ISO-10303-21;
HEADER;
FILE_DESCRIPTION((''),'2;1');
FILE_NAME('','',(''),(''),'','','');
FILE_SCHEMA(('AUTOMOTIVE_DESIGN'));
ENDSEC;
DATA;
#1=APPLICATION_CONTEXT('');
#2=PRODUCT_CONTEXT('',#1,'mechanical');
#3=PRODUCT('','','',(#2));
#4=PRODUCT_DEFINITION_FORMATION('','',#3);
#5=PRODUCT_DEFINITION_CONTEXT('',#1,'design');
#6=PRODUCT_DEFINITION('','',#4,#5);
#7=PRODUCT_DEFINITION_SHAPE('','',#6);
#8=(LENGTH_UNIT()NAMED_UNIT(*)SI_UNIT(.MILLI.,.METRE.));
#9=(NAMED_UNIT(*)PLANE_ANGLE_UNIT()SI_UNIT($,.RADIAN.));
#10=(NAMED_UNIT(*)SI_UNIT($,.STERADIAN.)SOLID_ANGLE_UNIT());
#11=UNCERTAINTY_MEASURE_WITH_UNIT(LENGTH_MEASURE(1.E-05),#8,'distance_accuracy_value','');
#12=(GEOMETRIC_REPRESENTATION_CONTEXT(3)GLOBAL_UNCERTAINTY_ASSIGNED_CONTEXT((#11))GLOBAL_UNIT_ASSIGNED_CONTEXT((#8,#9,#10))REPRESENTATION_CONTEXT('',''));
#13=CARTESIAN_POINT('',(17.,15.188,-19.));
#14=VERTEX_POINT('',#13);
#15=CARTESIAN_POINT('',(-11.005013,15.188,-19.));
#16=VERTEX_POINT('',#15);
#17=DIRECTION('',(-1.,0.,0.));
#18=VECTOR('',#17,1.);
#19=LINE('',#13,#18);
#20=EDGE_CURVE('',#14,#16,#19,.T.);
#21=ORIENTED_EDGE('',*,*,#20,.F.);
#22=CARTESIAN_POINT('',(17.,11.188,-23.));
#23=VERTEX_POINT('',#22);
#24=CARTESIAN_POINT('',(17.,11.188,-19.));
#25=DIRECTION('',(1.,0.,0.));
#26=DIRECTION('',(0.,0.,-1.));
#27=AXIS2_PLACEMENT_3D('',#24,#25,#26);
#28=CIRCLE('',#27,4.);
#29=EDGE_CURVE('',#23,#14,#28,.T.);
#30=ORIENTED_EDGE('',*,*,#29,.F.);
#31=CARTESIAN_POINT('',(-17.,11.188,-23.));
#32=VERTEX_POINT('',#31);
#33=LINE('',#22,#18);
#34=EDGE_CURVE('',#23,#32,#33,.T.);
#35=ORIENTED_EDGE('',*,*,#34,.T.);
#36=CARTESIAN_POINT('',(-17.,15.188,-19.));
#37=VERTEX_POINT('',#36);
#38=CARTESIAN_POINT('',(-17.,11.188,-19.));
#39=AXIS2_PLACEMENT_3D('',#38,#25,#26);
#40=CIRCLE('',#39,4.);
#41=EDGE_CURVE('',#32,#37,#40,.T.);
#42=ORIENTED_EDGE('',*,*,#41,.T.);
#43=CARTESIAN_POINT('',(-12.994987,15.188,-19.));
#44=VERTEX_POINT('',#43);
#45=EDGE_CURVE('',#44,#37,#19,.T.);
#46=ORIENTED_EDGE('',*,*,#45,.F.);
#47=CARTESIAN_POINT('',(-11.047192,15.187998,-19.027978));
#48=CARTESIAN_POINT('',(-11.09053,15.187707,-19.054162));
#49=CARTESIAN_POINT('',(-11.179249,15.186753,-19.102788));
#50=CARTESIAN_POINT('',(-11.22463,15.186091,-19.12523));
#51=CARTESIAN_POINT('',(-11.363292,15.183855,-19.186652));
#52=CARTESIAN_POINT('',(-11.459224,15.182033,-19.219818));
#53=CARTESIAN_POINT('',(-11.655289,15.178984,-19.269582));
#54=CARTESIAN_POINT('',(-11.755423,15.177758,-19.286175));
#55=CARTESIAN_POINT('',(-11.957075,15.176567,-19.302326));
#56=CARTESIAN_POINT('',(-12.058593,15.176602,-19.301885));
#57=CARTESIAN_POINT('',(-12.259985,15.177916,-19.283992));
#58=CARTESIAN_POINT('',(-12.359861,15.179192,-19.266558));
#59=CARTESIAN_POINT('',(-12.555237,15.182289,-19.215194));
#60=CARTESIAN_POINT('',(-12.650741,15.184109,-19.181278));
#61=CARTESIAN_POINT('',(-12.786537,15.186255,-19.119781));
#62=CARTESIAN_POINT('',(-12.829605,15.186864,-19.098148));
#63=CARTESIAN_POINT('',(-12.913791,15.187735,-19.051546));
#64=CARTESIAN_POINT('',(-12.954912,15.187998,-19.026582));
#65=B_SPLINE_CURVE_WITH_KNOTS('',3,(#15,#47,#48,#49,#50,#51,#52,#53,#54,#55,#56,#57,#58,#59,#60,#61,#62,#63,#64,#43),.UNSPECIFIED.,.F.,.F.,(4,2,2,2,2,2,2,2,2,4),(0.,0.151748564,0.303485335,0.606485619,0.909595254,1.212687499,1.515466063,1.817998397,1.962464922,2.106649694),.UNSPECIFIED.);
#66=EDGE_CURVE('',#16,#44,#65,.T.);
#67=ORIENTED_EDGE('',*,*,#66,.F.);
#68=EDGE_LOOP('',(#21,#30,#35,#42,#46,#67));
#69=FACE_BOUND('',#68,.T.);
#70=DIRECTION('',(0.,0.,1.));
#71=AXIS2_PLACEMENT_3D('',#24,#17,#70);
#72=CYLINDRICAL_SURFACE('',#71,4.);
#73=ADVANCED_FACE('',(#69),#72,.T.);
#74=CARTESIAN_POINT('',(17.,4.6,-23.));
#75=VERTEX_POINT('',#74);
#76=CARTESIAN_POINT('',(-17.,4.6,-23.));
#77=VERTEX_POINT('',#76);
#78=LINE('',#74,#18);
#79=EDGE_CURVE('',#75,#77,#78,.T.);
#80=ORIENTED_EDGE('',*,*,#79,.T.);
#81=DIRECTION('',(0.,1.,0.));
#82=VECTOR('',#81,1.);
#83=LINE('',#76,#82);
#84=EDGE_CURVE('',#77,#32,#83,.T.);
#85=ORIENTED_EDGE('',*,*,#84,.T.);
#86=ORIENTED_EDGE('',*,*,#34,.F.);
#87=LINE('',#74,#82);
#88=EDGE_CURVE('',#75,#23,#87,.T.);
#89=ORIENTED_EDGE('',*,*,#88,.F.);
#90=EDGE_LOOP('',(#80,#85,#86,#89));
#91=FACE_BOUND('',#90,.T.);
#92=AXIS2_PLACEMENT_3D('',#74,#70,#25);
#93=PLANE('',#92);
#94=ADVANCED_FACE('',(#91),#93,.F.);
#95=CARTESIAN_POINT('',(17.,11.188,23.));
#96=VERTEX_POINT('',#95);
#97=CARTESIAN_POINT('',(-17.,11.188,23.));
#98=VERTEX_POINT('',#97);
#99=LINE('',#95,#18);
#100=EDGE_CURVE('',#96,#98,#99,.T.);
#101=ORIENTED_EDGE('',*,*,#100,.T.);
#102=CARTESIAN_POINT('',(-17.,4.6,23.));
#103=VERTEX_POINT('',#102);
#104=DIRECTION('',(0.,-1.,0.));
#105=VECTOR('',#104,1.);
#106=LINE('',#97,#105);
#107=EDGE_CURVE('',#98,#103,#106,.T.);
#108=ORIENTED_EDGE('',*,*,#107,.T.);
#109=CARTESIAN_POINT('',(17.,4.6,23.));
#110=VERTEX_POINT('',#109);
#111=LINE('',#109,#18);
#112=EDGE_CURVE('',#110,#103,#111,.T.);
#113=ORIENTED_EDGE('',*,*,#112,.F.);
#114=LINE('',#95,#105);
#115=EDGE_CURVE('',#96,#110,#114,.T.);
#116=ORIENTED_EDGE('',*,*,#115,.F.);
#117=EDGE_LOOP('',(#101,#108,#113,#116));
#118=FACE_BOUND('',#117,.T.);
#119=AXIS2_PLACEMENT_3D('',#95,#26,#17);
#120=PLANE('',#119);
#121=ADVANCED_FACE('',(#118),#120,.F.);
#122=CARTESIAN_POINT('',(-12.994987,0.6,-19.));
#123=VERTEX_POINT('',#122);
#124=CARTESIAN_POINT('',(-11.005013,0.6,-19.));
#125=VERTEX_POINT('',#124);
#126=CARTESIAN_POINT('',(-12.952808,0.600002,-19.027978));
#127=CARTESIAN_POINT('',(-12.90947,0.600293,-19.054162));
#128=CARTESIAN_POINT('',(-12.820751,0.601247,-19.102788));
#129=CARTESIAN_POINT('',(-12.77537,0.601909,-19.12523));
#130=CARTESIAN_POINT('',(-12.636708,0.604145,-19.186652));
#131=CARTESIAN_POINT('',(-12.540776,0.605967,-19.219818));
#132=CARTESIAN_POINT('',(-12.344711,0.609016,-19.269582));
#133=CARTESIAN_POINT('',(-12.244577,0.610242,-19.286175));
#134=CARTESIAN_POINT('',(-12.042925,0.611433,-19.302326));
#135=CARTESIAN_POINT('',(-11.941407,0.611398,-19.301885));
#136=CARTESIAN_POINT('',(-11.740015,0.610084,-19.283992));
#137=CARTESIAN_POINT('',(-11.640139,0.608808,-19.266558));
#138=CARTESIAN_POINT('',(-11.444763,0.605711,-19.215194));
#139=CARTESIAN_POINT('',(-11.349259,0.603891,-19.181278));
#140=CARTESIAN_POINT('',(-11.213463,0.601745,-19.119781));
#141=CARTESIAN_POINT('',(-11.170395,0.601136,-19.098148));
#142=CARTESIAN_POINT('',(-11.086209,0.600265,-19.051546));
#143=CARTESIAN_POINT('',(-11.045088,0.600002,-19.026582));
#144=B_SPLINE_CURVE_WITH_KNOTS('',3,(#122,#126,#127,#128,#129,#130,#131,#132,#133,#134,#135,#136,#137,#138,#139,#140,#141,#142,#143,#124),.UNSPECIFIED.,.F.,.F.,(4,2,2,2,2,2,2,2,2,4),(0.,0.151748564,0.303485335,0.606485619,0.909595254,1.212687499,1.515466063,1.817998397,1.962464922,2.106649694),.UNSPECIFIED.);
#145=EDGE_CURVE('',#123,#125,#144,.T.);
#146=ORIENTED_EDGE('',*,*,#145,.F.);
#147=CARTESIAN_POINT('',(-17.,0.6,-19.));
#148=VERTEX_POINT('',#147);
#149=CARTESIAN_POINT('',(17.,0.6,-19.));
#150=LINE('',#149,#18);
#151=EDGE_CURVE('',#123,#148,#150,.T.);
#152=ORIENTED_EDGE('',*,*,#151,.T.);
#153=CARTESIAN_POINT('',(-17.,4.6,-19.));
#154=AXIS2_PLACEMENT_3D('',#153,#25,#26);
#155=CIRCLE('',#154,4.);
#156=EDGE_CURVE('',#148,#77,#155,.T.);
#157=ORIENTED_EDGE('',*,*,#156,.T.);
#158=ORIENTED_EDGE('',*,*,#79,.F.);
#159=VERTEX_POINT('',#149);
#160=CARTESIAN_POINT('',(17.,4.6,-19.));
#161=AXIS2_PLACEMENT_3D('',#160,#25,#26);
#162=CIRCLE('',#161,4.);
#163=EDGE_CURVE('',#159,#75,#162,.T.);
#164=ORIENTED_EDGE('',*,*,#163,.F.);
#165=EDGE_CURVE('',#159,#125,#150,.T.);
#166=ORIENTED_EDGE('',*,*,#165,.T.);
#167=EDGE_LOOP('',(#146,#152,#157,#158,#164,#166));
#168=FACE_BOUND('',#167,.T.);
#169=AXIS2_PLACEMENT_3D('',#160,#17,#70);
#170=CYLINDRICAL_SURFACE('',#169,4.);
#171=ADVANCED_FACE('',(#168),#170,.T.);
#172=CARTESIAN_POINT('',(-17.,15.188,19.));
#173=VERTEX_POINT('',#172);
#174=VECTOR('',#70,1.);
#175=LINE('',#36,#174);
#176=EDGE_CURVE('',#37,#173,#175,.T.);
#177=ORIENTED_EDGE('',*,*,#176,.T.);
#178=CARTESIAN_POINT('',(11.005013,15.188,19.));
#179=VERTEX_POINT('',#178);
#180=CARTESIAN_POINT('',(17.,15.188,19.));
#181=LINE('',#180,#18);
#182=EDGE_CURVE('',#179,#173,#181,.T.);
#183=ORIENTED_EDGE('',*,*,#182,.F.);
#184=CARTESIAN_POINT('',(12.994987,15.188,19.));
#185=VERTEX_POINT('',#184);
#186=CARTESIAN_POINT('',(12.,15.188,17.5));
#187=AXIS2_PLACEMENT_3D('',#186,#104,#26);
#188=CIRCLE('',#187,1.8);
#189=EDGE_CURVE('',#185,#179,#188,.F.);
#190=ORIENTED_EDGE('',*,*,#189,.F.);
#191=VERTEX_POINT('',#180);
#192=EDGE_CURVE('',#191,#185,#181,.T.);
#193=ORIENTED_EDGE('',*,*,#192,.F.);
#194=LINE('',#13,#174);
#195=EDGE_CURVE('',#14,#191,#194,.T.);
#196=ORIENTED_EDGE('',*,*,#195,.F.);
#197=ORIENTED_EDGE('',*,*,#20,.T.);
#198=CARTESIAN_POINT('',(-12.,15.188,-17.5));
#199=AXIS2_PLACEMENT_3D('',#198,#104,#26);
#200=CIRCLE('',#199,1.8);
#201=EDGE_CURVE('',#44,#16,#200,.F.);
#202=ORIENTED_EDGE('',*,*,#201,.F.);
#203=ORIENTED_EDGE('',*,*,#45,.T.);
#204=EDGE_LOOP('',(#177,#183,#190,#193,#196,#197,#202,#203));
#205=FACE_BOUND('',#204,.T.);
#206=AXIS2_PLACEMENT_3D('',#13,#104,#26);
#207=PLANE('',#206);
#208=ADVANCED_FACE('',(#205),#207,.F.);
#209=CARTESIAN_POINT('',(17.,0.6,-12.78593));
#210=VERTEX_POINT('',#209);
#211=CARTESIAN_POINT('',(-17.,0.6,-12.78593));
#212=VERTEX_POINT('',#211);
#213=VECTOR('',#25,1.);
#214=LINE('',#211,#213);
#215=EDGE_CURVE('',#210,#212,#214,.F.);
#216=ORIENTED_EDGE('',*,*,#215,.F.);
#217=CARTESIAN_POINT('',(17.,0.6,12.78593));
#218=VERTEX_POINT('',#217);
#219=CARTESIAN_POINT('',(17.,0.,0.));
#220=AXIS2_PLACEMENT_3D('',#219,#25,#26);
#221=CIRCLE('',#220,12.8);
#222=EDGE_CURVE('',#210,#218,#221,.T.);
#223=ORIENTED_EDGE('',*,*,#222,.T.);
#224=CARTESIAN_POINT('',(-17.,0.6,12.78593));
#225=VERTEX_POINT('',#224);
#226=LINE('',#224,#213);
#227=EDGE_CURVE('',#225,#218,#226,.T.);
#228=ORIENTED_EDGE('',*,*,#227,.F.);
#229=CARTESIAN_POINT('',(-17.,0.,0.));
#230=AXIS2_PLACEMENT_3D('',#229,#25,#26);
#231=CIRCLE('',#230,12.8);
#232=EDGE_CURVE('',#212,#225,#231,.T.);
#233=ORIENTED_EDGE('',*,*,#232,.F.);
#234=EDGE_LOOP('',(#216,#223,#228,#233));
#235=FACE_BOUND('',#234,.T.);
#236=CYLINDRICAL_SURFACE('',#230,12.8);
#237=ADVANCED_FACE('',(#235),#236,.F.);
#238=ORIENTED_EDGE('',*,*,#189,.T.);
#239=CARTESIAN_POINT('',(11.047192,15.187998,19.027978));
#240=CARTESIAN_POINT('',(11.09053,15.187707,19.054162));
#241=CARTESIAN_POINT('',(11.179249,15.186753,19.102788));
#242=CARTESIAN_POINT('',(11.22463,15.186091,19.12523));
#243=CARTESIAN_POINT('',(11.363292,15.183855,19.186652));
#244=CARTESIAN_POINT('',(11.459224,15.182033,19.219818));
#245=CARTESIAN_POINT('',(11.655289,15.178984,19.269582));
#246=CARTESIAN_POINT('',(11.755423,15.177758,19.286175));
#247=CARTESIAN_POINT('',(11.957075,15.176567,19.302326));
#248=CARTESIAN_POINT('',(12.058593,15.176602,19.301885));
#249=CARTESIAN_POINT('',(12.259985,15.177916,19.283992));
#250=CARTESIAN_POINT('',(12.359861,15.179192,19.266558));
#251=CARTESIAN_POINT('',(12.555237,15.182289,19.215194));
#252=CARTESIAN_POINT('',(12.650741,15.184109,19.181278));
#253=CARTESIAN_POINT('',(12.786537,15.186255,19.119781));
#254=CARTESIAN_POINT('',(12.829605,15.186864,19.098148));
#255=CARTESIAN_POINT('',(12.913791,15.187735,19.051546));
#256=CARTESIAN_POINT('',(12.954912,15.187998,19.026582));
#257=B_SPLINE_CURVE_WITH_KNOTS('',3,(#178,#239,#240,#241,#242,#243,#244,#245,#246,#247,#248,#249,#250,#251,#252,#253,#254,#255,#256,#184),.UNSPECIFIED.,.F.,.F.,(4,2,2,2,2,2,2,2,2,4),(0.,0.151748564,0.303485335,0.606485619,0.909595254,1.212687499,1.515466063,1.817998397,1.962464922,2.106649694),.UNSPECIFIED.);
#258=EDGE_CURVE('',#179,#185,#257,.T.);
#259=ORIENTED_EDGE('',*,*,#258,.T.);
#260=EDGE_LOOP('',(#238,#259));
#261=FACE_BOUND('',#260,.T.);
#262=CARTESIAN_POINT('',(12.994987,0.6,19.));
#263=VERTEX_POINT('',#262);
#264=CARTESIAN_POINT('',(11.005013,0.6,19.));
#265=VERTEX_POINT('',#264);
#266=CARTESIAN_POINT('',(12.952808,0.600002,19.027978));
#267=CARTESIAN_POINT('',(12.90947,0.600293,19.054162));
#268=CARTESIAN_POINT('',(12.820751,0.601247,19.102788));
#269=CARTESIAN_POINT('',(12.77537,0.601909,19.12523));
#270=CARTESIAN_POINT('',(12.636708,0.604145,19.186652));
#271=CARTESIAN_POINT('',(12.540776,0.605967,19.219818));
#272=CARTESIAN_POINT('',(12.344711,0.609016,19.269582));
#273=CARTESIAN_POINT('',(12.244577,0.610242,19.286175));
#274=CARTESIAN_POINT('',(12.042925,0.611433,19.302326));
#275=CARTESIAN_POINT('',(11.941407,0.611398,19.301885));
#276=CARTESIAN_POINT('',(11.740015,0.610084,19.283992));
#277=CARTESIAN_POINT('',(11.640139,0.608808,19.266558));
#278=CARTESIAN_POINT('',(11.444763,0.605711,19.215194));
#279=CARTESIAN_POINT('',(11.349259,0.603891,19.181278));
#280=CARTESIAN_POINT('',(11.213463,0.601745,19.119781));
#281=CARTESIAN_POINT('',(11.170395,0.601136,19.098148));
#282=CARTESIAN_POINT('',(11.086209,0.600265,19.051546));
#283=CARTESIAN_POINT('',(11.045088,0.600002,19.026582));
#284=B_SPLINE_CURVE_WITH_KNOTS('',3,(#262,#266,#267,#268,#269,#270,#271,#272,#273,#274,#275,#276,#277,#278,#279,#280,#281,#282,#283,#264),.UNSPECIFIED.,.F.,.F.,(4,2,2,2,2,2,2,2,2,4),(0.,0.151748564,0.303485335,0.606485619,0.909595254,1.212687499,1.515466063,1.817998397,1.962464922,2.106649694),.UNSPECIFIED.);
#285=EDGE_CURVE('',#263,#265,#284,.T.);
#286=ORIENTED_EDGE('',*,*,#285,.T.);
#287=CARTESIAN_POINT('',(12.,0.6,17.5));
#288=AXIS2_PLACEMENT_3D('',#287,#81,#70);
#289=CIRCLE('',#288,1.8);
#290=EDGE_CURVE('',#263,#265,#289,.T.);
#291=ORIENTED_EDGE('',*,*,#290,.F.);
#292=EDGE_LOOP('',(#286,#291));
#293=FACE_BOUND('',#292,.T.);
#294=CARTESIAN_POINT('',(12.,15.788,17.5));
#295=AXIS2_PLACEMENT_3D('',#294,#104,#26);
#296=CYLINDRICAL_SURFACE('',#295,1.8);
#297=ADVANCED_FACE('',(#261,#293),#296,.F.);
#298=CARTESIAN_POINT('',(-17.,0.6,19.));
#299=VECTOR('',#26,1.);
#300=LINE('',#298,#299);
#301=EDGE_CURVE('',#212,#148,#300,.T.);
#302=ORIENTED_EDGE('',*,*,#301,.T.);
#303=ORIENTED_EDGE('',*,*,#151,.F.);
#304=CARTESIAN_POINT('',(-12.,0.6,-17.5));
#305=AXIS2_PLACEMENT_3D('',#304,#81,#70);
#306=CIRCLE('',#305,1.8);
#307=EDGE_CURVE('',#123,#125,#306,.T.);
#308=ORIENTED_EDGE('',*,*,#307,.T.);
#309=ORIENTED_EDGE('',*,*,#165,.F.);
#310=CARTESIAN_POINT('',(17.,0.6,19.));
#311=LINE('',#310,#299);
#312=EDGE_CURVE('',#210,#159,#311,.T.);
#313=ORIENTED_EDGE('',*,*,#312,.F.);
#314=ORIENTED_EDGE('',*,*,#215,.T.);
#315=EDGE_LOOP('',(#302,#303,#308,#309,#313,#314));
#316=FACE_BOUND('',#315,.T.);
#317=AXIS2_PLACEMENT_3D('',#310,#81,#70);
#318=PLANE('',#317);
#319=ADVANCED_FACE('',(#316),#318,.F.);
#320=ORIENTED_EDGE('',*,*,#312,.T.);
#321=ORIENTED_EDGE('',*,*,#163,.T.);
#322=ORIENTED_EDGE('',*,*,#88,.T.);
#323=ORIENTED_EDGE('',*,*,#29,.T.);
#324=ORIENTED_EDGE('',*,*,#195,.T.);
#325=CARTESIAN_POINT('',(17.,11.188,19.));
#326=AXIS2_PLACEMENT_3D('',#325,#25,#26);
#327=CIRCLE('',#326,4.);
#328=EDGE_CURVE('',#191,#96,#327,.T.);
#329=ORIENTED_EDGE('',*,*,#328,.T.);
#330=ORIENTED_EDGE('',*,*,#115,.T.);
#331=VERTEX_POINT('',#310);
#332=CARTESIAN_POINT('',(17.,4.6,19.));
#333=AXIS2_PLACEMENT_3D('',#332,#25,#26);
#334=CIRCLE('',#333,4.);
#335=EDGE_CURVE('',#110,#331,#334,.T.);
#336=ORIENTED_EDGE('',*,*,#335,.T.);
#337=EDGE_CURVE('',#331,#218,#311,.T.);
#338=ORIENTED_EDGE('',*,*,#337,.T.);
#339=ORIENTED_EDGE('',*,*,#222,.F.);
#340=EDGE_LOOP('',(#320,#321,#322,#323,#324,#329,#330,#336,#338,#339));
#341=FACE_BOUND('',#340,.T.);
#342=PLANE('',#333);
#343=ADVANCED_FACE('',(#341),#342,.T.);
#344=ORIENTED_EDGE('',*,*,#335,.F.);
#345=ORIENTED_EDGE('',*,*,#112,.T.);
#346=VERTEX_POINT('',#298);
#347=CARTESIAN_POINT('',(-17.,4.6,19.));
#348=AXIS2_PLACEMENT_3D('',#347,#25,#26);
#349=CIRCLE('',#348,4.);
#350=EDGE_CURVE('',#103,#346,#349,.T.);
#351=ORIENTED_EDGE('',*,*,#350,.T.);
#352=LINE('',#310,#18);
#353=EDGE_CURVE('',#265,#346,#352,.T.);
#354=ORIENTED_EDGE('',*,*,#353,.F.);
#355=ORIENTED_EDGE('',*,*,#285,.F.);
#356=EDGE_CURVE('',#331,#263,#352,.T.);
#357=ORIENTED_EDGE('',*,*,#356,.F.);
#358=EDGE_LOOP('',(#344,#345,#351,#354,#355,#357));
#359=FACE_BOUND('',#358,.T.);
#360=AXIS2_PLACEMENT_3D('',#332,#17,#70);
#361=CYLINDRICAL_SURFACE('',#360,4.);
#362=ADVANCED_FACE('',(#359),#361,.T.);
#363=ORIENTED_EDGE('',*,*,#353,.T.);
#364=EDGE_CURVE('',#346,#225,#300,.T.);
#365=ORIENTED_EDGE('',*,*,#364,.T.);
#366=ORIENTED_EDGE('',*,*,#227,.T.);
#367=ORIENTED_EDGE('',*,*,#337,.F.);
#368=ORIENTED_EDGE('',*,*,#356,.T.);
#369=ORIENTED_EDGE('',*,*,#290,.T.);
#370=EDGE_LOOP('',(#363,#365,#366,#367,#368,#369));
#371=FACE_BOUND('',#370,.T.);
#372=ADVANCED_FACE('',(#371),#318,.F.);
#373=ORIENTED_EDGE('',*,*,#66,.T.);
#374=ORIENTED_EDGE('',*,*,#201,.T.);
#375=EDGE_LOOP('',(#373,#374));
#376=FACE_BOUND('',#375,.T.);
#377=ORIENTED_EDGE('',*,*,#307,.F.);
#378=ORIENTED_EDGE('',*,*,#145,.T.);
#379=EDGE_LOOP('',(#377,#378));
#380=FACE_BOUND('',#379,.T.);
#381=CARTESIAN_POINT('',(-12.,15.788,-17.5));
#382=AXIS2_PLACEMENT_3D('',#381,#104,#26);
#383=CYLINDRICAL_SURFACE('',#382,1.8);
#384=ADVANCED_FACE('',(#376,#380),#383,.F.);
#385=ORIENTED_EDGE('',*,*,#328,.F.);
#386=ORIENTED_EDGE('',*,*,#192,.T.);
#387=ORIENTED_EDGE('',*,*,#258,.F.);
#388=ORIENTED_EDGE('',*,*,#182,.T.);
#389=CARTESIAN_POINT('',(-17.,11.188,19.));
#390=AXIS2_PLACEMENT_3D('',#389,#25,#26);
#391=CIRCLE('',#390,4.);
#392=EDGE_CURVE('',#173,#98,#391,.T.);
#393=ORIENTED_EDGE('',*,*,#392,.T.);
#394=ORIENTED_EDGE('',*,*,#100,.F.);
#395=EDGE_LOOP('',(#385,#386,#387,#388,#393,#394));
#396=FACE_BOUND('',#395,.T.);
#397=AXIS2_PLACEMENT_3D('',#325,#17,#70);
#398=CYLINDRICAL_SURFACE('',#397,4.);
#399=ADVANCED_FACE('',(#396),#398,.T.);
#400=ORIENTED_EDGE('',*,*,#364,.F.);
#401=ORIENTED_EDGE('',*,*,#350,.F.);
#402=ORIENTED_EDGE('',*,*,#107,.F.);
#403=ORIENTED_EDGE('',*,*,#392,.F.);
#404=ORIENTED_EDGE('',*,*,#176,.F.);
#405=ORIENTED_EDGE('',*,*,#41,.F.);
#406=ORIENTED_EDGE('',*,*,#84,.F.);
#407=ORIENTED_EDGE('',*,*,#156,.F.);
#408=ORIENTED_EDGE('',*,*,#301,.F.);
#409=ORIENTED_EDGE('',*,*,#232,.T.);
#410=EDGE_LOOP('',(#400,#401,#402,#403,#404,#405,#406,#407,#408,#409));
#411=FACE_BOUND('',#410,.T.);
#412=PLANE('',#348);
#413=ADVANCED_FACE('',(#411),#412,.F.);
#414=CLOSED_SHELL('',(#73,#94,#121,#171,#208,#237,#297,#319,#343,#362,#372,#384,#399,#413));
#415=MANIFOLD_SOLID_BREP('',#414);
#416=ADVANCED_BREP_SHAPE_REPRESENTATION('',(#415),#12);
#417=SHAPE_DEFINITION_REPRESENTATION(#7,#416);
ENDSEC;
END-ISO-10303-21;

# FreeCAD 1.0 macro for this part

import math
import FreeCAD as App
import Part
import Sketcher
Q = App.Units.Quantity

doc = App.newDocument("Part")
body = doc.addObject("PartDesign::Body", "Body")

# Sketch on YZ plane
sketch1 = body.newObject("Sketcher::SketchObject", "Sketch")
sketch1.AttachmentSupport = (doc.getObject("YZ_Plane"), [""])
sketch1.MapMode = "FlatFace"
sketch1.addGeometry([
    Part.LineSegment(App.Vector(0.6, 19, 0), App.Vector(0.6, -19, 0)),  # 0
    Part.ArcOfCircle(Part.Circle(App.Vector(4.6, -19, 0), App.Vector(0, 0, 1), 4), math.radians(180), math.radians(270)),  # 1
    Part.LineSegment(App.Vector(4.6, -23, 0), App.Vector(11.2, -23, 0)),  # 2
    Part.ArcOfCircle(Part.Circle(App.Vector(11.2, -19, 0), App.Vector(0, 0, 1), 4), math.radians(-90), math.radians(0)),  # 3
    Part.LineSegment(App.Vector(15.2, -19, 0), App.Vector(15.2, 19, 0)),  # 4
    Part.ArcOfCircle(Part.Circle(App.Vector(11.2, 19, 0), App.Vector(0, 0, 1), 4), math.radians(0), math.radians(90)),  # 5
    Part.LineSegment(App.Vector(11.2, 23, 0), App.Vector(4.6, 23, 0)),  # 6
    Part.ArcOfCircle(Part.Circle(App.Vector(4.6, 19, 0), App.Vector(0, 0, 1), 4), math.radians(90), math.radians(180)),  # 7
], False)
sketch1.addConstraint([
    Sketcher.Constraint("Tangent", 0, 2, 1, 1),
    Sketcher.Constraint("Tangent", 1, 2, 2, 1),
    Sketcher.Constraint("Tangent", 2, 2, 3, 1),
    Sketcher.Constraint("Tangent", 3, 2, 4, 1),
    Sketcher.Constraint("Tangent", 4, 2, 5, 1),
    Sketcher.Constraint("Tangent", 5, 2, 6, 1),
    Sketcher.Constraint("Tangent", 6, 2, 7, 1),
    Sketcher.Constraint("Tangent", 7, 2, 0, 1),
    Sketcher.Constraint("Vertical", 0),
    Sketcher.Constraint("Horizontal", 2),
    Sketcher.Constraint("Vertical", 4),
    Sketcher.Constraint("Horizontal", 6),
    Sketcher.Constraint("Equal", 1, 3),
    Sketcher.Constraint("Equal", 3, 5),
    Sketcher.Constraint("Equal", 5, 7),
    Sketcher.Constraint("Radius", 1, Q("4 mm")),
    Sketcher.Constraint("DistanceY", 0, 2, 0, 1, Q("38 mm")),
    Sketcher.Constraint("DistanceY", 1, 3, -1, 1, Q("19 mm")),
    Sketcher.Constraint("DistanceX", -1, 1, 1, 3, Q("4.6 mm")),
    Sketcher.Constraint("DistanceX", 2, 1, 2, 2, Q("6.588 mm")),
])
pad1 = body.newObject("PartDesign::Pad", "Pad")
pad1.Profile = sketch1
pad1.Length = 34
pad1.Midplane = True

# Sketch on YZ plane
sketch2 = body.newObject("Sketcher::SketchObject", "Sketch001")
sketch2.AttachmentSupport = (doc.getObject("YZ_Plane"), [""])
sketch2.MapMode = "FlatFace"
sketch2.addGeometry(Part.Circle(App.Vector(0, 0, 0), App.Vector(0, 0, 1), 13), False)
sketch2.addConstraint([
    Sketcher.Constraint("Coincident", 0, 3, -1, 1),
    Sketcher.Constraint("Diameter", 0, Q("25.6 mm")),
])
pocket1 = body.newObject("PartDesign::Pocket", "Pocket")
pocket1.Profile = sketch2
pocket1.Type = "ThroughAll"
pocket1.Midplane = True

# Sketch on XZ plane
sketch3 = body.newObject("Sketcher::SketchObject", "Sketch002")
sketch3.AttachmentSupport = (doc.getObject("XZ_Plane"), [""])
sketch3.MapMode = "FlatFace"
sketch3.AttachmentOffset = App.Placement(App.Vector(0, 0, -0.6), App.Rotation())
sketch3.addGeometry([
    Part.Circle(App.Vector(12, 17.5, 0), App.Vector(0, 0, 1), 1.8),
    Part.Circle(App.Vector(-12, -17.5, 0), App.Vector(0, 0, 1), 1.8),
], False)
sketch3.addConstraint([
    Sketcher.Constraint("Equal", 0, 1),
    Sketcher.Constraint("Symmetric", 0, 3, 1, 3, -1, 1),
    Sketcher.Constraint("Diameter", 0, Q("3.6 mm")),
    Sketcher.Constraint("DistanceX", -1, 1, 0, 3, Q("12 mm")),
    Sketcher.Constraint("DistanceY", 1, 3, 0, 3, Q("35 mm")),
])
pocket2 = body.newObject("PartDesign::Pocket", "Pocket001")
pocket2.Profile = sketch3
pocket2.Length = 15.188

doc.recompute()
